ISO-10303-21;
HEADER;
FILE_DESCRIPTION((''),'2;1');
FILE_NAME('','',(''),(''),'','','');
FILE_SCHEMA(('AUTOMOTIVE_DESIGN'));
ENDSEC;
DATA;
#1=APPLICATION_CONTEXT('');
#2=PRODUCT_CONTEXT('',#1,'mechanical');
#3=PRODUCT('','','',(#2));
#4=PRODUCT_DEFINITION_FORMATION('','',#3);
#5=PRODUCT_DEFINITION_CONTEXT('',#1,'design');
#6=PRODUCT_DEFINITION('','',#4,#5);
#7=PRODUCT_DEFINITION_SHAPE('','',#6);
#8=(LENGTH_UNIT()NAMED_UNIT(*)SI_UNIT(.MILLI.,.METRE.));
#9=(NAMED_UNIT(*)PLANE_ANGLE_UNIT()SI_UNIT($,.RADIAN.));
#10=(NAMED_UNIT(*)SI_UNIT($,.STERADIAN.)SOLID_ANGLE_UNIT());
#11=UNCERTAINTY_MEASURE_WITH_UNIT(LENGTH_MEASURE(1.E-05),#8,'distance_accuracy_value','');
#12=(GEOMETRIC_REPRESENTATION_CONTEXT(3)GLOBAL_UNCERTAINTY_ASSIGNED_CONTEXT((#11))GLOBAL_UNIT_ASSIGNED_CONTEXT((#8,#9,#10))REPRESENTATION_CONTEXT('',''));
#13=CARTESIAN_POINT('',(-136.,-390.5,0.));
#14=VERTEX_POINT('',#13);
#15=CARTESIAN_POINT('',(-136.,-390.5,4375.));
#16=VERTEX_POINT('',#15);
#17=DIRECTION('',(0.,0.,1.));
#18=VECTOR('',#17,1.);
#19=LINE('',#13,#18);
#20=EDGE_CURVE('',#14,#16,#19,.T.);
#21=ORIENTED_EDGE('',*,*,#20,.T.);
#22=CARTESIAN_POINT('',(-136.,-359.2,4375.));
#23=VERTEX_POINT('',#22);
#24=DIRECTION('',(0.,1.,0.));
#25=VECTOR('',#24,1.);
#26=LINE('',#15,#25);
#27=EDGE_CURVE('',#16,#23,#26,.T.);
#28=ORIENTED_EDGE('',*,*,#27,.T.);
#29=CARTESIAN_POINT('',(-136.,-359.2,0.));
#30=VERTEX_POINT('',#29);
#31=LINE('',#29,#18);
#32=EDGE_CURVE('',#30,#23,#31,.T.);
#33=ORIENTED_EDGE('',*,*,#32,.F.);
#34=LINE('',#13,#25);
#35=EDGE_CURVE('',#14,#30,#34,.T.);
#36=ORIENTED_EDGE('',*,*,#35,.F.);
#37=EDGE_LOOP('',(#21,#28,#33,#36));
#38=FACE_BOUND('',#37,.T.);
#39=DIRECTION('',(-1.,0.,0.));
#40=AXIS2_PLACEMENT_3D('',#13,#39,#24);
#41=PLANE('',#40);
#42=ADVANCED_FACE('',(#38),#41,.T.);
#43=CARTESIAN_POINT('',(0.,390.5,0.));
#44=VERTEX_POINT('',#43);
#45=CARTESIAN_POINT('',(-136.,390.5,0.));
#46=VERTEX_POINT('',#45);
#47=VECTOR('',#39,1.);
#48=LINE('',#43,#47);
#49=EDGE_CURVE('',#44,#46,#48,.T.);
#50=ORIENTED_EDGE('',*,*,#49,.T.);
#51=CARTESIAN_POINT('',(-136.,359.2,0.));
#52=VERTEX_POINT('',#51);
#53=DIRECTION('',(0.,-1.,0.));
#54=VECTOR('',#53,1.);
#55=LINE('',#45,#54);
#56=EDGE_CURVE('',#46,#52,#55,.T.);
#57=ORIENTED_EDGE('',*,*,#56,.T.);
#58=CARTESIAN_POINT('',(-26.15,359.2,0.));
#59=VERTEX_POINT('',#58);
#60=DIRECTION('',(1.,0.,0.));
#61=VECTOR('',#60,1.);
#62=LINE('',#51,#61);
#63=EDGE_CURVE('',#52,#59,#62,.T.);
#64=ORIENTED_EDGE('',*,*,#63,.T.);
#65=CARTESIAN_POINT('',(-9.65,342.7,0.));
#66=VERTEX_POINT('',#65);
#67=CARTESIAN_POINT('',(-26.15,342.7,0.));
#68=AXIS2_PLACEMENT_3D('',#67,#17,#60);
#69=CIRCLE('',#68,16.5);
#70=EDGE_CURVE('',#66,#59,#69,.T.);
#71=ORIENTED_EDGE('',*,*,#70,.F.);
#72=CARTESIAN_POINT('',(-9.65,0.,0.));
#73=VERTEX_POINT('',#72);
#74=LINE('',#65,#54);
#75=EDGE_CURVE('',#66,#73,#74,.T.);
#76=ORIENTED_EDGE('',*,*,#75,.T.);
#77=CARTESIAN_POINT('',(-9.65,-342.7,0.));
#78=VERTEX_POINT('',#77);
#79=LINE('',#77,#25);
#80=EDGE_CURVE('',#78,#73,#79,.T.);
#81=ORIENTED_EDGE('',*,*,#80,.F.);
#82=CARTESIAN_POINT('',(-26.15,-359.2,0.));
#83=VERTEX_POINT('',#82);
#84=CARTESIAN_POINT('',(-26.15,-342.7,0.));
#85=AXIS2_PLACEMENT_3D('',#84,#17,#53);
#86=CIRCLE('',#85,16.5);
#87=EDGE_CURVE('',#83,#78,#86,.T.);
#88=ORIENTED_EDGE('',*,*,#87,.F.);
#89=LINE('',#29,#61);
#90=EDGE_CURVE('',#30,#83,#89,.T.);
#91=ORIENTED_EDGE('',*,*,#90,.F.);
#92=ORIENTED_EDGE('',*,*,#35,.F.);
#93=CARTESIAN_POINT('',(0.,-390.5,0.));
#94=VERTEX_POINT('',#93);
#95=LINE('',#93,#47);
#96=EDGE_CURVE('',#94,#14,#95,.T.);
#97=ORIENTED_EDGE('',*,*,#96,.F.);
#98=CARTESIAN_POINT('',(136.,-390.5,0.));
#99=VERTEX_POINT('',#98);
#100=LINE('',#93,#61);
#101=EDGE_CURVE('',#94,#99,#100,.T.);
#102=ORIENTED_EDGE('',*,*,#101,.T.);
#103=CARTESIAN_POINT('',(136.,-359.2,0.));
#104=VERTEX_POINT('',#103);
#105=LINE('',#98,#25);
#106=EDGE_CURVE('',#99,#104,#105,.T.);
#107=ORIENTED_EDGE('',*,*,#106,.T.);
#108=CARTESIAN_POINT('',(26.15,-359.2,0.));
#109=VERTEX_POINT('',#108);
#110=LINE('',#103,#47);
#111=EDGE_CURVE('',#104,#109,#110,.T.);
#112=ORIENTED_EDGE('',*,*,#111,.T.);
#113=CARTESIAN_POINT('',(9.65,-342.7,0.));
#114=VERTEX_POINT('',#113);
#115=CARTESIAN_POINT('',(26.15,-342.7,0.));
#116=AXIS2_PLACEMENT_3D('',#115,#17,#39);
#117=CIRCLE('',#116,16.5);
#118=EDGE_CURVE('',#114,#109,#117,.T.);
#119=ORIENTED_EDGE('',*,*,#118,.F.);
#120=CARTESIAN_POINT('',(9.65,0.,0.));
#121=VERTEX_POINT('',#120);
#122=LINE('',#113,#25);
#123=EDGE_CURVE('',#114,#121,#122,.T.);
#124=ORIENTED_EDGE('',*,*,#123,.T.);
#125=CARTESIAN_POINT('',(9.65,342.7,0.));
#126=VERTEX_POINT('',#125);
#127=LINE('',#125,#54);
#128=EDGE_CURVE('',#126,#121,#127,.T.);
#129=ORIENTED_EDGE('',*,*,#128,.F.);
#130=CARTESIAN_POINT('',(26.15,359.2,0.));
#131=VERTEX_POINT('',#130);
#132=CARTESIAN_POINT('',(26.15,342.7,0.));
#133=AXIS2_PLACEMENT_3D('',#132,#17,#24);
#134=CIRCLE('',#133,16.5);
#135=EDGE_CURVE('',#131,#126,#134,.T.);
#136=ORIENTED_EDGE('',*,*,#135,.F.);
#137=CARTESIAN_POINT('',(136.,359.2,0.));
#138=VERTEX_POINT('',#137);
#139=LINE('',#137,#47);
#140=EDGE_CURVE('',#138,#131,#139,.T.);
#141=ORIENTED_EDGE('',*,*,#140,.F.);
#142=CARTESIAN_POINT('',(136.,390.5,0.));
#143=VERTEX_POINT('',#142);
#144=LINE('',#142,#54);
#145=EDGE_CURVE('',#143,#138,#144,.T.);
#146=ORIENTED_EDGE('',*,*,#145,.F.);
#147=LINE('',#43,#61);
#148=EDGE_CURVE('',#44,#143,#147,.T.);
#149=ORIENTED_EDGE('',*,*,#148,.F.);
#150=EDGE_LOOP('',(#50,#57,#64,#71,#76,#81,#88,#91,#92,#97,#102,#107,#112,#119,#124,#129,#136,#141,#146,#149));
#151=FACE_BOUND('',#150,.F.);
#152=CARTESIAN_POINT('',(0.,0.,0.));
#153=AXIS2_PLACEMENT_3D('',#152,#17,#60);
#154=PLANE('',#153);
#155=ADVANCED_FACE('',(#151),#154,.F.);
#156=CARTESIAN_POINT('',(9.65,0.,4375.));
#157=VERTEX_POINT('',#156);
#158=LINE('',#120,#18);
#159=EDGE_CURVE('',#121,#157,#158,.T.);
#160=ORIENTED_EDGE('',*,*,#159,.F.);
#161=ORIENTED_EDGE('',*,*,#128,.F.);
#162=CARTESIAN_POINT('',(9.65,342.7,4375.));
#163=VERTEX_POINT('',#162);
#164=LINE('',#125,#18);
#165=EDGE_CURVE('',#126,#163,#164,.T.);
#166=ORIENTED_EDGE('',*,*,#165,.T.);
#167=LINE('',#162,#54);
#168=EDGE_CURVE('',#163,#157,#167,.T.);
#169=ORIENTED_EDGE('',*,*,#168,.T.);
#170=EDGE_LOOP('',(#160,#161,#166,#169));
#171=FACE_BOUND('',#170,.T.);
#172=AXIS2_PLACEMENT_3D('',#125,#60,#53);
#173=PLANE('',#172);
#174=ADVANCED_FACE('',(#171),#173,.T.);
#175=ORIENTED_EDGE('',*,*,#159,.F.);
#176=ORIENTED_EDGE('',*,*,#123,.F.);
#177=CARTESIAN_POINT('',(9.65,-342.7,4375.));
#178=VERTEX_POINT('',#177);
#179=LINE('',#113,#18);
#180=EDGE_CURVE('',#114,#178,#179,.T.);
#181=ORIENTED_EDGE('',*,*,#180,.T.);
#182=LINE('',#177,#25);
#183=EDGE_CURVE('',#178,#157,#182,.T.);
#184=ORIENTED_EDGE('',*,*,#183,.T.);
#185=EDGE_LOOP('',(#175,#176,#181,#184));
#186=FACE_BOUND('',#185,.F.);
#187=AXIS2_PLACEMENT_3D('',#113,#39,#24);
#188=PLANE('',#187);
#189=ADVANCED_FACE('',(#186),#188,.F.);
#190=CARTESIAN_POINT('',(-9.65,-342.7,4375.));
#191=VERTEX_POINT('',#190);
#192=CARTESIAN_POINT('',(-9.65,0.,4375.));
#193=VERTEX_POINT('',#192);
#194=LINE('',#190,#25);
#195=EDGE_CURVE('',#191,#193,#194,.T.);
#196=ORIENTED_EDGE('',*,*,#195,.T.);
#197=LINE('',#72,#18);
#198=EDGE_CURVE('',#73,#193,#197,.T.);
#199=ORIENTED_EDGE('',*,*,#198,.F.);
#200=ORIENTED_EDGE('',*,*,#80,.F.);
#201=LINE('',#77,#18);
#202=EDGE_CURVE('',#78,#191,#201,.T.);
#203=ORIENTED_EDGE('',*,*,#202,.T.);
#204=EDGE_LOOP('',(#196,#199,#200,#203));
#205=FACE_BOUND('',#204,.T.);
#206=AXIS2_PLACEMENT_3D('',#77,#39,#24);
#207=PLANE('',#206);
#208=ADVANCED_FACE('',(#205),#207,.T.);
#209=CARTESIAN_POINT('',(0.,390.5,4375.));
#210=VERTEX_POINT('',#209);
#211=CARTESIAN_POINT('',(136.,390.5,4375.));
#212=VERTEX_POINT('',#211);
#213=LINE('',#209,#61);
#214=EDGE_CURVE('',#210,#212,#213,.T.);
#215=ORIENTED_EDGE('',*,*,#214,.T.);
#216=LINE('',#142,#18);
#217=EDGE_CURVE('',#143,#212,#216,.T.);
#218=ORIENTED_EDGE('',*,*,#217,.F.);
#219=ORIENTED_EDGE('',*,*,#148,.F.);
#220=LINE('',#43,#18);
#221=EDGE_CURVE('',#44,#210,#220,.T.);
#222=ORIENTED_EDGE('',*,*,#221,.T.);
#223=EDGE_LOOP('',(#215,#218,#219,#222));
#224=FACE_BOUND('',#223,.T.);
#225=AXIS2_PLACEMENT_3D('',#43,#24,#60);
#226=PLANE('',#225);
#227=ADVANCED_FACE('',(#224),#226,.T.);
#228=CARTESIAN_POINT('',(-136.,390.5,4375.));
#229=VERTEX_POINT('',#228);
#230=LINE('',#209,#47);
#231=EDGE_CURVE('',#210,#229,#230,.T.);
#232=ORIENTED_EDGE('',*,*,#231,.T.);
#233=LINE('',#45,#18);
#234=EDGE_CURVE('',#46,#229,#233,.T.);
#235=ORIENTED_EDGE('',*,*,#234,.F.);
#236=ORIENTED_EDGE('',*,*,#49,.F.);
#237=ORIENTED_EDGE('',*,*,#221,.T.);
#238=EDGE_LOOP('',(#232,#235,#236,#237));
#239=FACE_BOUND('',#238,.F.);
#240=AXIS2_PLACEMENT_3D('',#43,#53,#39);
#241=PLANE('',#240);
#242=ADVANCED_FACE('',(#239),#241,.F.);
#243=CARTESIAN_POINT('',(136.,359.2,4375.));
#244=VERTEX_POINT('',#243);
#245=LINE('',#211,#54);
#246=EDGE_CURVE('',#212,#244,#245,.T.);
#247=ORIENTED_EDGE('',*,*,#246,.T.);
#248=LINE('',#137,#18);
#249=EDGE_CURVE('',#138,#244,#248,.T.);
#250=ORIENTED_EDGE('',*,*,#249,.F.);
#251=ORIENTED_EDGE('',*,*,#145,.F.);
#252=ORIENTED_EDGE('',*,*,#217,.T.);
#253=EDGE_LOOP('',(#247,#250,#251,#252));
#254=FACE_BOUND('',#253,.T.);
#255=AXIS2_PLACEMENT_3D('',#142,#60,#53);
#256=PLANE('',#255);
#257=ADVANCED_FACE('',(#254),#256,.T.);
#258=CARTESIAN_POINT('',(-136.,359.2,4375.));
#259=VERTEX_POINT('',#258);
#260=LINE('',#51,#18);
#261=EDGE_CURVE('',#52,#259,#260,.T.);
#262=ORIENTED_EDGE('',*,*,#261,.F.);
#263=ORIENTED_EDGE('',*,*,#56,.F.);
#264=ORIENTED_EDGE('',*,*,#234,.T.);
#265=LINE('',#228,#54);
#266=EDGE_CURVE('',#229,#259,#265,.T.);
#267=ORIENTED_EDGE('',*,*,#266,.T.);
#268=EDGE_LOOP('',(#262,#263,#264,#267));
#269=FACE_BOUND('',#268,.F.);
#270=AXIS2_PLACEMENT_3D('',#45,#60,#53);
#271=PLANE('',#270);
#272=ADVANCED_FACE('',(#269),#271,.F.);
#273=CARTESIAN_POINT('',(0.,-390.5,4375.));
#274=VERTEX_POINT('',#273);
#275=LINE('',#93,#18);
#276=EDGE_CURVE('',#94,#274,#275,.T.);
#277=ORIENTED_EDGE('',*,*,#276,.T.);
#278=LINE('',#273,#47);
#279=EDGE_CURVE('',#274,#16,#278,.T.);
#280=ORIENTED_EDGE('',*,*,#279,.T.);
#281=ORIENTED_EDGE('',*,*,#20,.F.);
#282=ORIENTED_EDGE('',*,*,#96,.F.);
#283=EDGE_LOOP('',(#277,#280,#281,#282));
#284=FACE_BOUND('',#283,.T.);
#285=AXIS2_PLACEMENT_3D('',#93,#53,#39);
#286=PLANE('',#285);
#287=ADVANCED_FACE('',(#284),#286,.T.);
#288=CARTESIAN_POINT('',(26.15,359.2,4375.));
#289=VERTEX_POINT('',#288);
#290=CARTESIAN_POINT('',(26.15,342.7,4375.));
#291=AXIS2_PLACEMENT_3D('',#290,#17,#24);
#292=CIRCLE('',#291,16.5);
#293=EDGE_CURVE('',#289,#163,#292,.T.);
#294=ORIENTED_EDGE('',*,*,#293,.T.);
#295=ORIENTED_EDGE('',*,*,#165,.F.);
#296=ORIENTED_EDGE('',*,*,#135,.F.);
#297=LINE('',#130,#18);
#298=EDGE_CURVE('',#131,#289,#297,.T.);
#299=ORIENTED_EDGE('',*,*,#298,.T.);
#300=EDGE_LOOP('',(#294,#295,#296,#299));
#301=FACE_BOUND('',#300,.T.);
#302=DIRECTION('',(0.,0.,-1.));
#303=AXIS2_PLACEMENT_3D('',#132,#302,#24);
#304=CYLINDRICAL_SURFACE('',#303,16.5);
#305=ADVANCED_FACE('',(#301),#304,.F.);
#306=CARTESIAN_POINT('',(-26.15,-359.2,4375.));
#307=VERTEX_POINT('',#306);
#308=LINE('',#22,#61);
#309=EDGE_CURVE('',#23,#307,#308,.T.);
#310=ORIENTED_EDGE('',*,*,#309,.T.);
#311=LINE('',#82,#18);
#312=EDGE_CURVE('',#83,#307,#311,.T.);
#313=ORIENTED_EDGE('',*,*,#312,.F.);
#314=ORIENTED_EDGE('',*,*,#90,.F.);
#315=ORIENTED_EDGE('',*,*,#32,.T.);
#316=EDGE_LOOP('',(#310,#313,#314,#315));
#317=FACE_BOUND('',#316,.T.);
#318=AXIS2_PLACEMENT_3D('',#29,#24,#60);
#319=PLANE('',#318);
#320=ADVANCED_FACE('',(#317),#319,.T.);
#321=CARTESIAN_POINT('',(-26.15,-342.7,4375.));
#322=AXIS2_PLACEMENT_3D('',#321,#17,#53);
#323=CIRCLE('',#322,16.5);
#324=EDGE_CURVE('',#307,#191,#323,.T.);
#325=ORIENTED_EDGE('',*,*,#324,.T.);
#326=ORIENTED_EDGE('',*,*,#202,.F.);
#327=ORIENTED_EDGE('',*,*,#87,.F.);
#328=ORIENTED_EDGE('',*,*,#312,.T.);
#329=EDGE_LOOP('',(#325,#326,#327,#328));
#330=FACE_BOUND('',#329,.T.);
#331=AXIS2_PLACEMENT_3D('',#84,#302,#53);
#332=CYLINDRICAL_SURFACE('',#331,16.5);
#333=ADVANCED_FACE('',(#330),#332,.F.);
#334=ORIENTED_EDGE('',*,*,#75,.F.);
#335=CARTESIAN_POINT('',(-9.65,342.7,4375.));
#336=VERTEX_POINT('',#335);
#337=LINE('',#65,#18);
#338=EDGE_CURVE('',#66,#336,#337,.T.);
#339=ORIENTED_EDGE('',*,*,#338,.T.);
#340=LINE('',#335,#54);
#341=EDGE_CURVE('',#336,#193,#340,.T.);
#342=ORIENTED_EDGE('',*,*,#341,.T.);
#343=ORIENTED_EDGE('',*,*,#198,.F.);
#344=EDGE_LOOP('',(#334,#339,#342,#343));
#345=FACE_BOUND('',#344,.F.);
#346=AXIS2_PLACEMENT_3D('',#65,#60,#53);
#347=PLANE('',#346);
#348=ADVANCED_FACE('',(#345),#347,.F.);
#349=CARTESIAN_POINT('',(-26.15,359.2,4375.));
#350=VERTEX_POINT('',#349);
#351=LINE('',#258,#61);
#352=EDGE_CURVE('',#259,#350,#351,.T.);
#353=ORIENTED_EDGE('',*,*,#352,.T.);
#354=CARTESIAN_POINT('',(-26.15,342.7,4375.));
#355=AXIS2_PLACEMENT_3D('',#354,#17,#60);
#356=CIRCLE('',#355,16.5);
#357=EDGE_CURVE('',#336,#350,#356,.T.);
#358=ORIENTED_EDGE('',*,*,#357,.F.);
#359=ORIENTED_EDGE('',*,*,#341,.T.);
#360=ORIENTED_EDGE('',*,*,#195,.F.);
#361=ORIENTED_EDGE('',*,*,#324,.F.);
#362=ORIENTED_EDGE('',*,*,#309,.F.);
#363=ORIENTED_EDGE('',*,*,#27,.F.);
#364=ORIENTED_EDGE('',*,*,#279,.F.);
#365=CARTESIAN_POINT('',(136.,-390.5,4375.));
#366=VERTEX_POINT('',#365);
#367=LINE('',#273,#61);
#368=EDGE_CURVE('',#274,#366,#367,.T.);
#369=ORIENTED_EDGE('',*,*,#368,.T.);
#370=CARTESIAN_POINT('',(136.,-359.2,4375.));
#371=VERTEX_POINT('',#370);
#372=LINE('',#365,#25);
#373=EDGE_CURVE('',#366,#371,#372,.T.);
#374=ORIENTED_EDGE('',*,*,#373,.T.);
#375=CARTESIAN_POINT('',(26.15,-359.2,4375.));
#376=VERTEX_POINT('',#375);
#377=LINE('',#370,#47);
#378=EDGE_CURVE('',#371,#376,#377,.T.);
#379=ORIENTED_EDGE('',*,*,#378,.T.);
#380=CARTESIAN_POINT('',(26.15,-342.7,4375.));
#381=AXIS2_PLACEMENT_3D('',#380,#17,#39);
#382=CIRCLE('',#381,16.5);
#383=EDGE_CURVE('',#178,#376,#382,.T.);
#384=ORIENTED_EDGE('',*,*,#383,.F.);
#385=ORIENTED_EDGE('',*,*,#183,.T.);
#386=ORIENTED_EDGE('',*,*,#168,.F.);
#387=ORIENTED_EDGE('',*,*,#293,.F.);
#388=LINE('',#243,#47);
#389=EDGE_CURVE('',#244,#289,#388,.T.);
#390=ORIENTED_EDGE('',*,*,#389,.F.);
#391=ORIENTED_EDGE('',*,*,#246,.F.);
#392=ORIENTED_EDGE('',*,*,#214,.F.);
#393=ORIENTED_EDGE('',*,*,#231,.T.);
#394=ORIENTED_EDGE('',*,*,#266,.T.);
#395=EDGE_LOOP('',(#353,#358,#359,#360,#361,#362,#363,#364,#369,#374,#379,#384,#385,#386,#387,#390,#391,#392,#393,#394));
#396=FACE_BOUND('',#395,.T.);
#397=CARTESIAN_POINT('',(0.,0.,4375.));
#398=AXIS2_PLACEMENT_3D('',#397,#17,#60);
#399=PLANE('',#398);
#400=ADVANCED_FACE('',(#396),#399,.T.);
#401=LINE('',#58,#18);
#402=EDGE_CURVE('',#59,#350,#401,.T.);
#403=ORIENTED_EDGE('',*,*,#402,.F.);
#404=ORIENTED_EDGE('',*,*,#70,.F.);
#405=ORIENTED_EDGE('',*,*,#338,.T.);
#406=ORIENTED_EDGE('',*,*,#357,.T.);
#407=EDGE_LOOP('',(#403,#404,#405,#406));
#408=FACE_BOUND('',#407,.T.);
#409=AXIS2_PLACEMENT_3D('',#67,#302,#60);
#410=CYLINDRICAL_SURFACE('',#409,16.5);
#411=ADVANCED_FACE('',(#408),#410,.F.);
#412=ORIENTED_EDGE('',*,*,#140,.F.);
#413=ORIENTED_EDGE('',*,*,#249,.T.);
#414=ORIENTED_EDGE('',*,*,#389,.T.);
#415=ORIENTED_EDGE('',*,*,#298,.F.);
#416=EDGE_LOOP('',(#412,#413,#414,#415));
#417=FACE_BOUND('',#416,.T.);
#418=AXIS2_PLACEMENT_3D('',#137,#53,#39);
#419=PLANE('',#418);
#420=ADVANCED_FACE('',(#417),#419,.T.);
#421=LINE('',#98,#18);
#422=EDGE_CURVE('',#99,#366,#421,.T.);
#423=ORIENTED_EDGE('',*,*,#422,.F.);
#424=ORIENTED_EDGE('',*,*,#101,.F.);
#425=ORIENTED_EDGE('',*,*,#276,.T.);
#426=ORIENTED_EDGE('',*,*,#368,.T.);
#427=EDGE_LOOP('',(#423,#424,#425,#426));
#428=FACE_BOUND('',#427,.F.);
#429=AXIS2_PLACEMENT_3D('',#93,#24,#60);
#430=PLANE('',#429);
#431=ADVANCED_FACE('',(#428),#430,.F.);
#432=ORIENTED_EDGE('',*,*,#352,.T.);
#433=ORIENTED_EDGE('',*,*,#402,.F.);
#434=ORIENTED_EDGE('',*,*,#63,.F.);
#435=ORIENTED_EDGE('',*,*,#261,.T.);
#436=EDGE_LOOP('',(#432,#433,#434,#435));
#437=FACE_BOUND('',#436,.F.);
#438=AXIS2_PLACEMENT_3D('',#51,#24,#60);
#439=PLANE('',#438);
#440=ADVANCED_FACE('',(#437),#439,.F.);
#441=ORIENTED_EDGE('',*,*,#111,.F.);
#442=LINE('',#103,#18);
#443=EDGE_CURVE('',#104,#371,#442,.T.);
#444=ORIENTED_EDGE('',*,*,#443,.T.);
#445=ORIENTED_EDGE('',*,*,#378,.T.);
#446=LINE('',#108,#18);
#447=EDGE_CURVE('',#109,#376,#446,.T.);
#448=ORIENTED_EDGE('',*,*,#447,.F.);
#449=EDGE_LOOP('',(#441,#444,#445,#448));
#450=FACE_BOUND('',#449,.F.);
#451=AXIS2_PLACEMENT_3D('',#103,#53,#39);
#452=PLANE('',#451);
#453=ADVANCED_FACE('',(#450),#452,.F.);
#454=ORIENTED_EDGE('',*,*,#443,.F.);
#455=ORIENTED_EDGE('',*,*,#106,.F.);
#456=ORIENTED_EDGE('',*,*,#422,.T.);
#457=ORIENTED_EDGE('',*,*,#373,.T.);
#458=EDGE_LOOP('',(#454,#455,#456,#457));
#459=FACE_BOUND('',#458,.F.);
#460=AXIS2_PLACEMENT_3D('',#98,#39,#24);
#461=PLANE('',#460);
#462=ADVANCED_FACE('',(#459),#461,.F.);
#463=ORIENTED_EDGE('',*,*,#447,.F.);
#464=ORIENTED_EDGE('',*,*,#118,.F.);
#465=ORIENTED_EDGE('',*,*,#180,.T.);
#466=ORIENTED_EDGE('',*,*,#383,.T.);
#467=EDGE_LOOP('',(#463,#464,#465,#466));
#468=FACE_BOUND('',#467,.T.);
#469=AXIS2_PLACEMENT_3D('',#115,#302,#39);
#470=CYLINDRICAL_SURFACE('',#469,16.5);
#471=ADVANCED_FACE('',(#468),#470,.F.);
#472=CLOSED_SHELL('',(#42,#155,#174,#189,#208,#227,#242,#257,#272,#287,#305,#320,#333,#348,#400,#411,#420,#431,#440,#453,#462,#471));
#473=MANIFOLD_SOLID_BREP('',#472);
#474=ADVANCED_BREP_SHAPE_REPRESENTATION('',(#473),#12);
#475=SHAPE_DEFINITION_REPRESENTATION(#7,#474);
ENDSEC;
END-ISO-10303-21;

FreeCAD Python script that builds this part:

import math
import FreeCAD as App
import Part
import Sketcher
from FreeCAD import Vector
Q = App.Units.Quantity

doc = App.newDocument("Part")
body = doc.addObject("PartDesign::Body", "Body")

# Sketch on XY plane
sketch1 = body.newObject("Sketcher::SketchObject", "Sketch")
sketch1.AttachmentSupport = (doc.getObject("XY_Plane"), [""])
sketch1.MapMode = "FlatFace"
sketch1.addGeometry([
    Part.LineSegment(Vector(-136, -359, 0), Vector(-136, -390, 0)),  # 0
    Part.LineSegment(Vector(-136, -390, 0), Vector(136, -390, 0)),  # 1
    Part.LineSegment(Vector(136, -390, 0), Vector(136, -359, 0)),  # 2
    Part.LineSegment(Vector(136, -359, 0), Vector(26, -359, 0)),  # 3
    Part.ArcOfCircle(Part.Circle(Vector(26, -343, 0), Vector(0, 0, 1), 16), math.radians(180), math.radians(270)),  # 4
    Part.LineSegment(Vector(10, -343, 0), Vector(10, 343, 0)),  # 5
    Part.ArcOfCircle(Part.Circle(Vector(26, 343, 0), Vector(0, 0, 1), 16), math.radians(90), math.radians(180)),  # 6
    Part.LineSegment(Vector(26, 359, 0), Vector(136, 359, 0)),  # 7
    Part.LineSegment(Vector(136, 359, 0), Vector(136, 390, 0)),  # 8
    Part.LineSegment(Vector(136, 390, 0), Vector(-136, 390, 0)),  # 9
    Part.LineSegment(Vector(-136, 390, 0), Vector(-136, 359, 0)),  # 10
    Part.LineSegment(Vector(-136, 359, 0), Vector(-26, 359, 0)),  # 11
    Part.ArcOfCircle(Part.Circle(Vector(-26, 343, 0), Vector(0, 0, 1), 16), math.radians(0), math.radians(90)),  # 12
    Part.LineSegment(Vector(-10, 343, 0), Vector(-10, -343, 0)),  # 13
    Part.ArcOfCircle(Part.Circle(Vector(-26, -343, 0), Vector(0, 0, 1), 16), math.radians(-90), math.radians(0)),  # 14
    Part.LineSegment(Vector(-26, -359, 0), Vector(-136, -359, 0)),  # 15
], False)
sketch1.addConstraint([
    Sketcher.Constraint("Coincident", 0, 2, 1, 1),
    Sketcher.Constraint("Coincident", 1, 2, 2, 1),
    Sketcher.Constraint("Coincident", 2, 2, 3, 1),
    Sketcher.Constraint("Tangent", 3, 2, 4, 2),
    Sketcher.Constraint("Tangent", 4, 1, 5, 1),
    Sketcher.Constraint("Tangent", 5, 2, 6, 2),
    Sketcher.Constraint("Tangent", 6, 1, 7, 1),
    Sketcher.Constraint("Coincident", 7, 2, 8, 1),
    Sketcher.Constraint("Coincident", 8, 2, 9, 1),
    Sketcher.Constraint("Coincident", 9, 2, 10, 1),
    Sketcher.Constraint("Coincident", 10, 2, 11, 1),
    Sketcher.Constraint("Tangent", 11, 2, 12, 2),
    Sketcher.Constraint("Tangent", 12, 1, 13, 1),
    Sketcher.Constraint("Tangent", 13, 2, 14, 2),
    Sketcher.Constraint("Tangent", 14, 1, 15, 1),
    Sketcher.Constraint("Coincident", 15, 2, 0, 1),
    Sketcher.Constraint("Vertical", 0),
    Sketcher.Constraint("Horizontal", 1),
    Sketcher.Constraint("Vertical", 2),
    Sketcher.Constraint("Horizontal", 3),
    Sketcher.Constraint("Vertical", 5),
    Sketcher.Constraint("Horizontal", 7),
    Sketcher.Constraint("Vertical", 8),
    Sketcher.Constraint("Horizontal", 9),
    Sketcher.Constraint("Vertical", 10),
    Sketcher.Constraint("Horizontal", 11),
    Sketcher.Constraint("Vertical", 13),
    Sketcher.Constraint("Horizontal", 15),
    Sketcher.Constraint("Equal", 4, 6),
    Sketcher.Constraint("Equal", 6, 12),
    Sketcher.Constraint("Equal", 12, 14),
    Sketcher.Constraint("Symmetric", 4, 3, 12, 3, -1, 1),
    Sketcher.Constraint("Symmetric", 0, 2, 8, 2, -1, 1),
    Sketcher.Constraint("Symmetric", 7, 2, 10, 2, -2),
    Sketcher.Constraint("Symmetric", 2, 2, 15, 2, -2),
    Sketcher.Constraint("Radius", 4, Q("16.5 mm")),
    Sketcher.Constraint("DistanceY", 0, 2, 0, 1, Q("31.3 mm")),
    Sketcher.Constraint("DistanceX", 0, 2, -1, 1, Q("136 mm")),
    Sketcher.Constraint("DistanceY", 0, 2, -1, 1, Q("390.5 mm")),
    Sketcher.Constraint("DistanceX", -1, 1, 4, 1, Q("9.65 mm")),
])
pad1 = body.newObject("PartDesign::Pad", "Pad")
pad1.Profile = sketch1
pad1.Length = 4375

doc.recompute()
